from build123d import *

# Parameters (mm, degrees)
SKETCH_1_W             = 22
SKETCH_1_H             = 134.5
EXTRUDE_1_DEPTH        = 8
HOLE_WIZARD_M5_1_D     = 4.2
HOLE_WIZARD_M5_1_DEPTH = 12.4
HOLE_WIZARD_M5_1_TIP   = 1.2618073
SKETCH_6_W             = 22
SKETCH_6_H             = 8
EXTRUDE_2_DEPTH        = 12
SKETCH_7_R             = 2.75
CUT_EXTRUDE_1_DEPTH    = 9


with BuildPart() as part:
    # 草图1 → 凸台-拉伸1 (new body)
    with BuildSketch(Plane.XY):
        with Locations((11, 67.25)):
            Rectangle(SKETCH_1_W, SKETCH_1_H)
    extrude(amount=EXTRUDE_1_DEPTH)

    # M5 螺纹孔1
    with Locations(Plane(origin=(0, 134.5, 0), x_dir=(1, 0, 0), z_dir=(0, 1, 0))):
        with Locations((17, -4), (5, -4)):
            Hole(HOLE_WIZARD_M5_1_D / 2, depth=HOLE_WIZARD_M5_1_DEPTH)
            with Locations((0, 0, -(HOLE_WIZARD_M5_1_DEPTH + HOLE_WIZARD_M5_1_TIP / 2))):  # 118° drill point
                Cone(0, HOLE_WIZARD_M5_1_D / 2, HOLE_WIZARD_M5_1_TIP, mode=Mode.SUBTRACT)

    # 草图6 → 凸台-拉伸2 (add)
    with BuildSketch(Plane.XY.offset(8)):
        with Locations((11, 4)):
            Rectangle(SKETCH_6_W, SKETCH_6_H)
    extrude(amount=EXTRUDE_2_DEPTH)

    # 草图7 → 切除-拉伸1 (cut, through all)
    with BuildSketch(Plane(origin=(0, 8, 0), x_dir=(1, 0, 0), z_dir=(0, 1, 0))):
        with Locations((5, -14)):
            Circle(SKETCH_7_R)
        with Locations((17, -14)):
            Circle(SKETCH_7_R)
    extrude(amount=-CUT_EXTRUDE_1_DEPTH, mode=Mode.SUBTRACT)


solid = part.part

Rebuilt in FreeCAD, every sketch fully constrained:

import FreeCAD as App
import Part
import Sketcher
from FreeCAD import Vector


def add_polygon(sketch, points):
    """Adds a closed chain of lines whose ends are joined by coincident constraints."""
    first, n = sketch.GeometryCount, len(points)
    for a, b in zip(points, points[1:] + points[:1]):
        sketch.addGeometry(Part.LineSegment(App.Vector(*a, 0), App.Vector(*b, 0)), False)
    for i in range(n):
        sketch.addConstraint(Sketcher.Constraint("Coincident", first + i, 2, first + (i + 1) % n, 1))

doc = App.newDocument("Part")
body = doc.addObject("PartDesign::Body", "Body")

sketch1 = body.newObject("Sketcher::SketchObject", "Sketch")
sketch1.AttachmentSupport = (doc.getObject("XY_Plane"), [""])
sketch1.MapMode = "FlatFace"
add_polygon(sketch1, [(0, 134), (0, 0), (22, 0), (22, 134)])
sketch1.addConstraint([
    Sketcher.Constraint("Vertical", 0),
    Sketcher.Constraint("Horizontal", 1),
    Sketcher.Constraint("Vertical", 2),
    Sketcher.Constraint("Horizontal", 3),
    Sketcher.Constraint("Coincident", 0, 2, -1, 1),
    Sketcher.Constraint("DistanceX", 1, 1, 1, 2, 22.0),
    Sketcher.Constraint("DistanceY", 0, 2, 0, 1, 134.5),
])
pad1 = body.newObject("PartDesign::Pad", "Pad")
pad1.Profile = sketch1
pad1.Length = 8

sketch2 = body.newObject("Sketcher::SketchObject", "Sketch001")
sketch2.AttachmentSupport = (doc.getObject("XZ_Plane"), [""])
sketch2.MapMode = "FlatFace"
sketch2.AttachmentOffset = App.Placement(Vector(0, 0, -134.5), App.Rotation())
sketch2.addGeometry([
    Part.Circle(Vector(17, 4, 0), Vector(0, 0, 1), 2.1),
    Part.Circle(Vector(5, 4, 0), Vector(0, 0, 1), 2.1),
], False)
sketch2.addConstraint([
    Sketcher.Constraint("Equal", 0, 1),
    Sketcher.Constraint("Horizontal", 0, 3, 1, 3),
    Sketcher.Constraint("Diameter", 0, 4.2),
    Sketcher.Constraint("DistanceX", -1, 1, 0, 3, 17.0),
    Sketcher.Constraint("DistanceY", -1, 1, 0, 3, 4.0),
    Sketcher.Constraint("DistanceX", -1, 1, 1, 3, 5.0),
])
doc.recompute()
hole = body.newObject("PartDesign::Hole", "Hole")
hole.Profile = sketch2
hole.ThreadType = "None"
hole.Diameter = 4.2
hole.DepthType = "Dimension"
hole.Depth = 12.4
hole.DrillPoint = "Angled"
hole.DrillPointAngle = 118
hole.Reversed = True

sketch3 = body.newObject("Sketcher::SketchObject", "Sketch002")
sketch3.AttachmentSupport = (doc.getObject("XY_Plane"), [""])
sketch3.MapMode = "FlatFace"
sketch3.AttachmentOffset = App.Placement(Vector(0, 0, 8), App.Rotation())
add_polygon(sketch3, [(0, 8), (0, 0), (22, 0), (22, 8)])
sketch3.addConstraint([
    Sketcher.Constraint("Vertical", 0),
    Sketcher.Constraint("Horizontal", 1),
    Sketcher.Constraint("Vertical", 2),
    Sketcher.Constraint("Horizontal", 3),
    Sketcher.Constraint("Coincident", 0, 2, -1, 1),
    Sketcher.Constraint("DistanceX", 1, 1, 1, 2, 22.0),
    Sketcher.Constraint("DistanceY", 0, 2, 0, 1, 8.0),
])
pad2 = body.newObject("PartDesign::Pad", "Pad001")
pad2.Profile = sketch3
pad2.Length = 12

sketch4 = body.newObject("Sketcher::SketchObject", "Sketch003")
sketch4.AttachmentSupport = (doc.getObject("XZ_Plane"), [""])
sketch4.MapMode = "FlatFace"
sketch4.AttachmentOffset = App.Placement(Vector(0, 0, -8), App.Rotation())
sketch4.addGeometry([
    Part.Circle(Vector(5, 14, 0), Vector(0, 0, 1), 2.8),
    Part.Circle(Vector(17, 14, 0), Vector(0, 0, 1), 2.8),
], False)
sketch4.addConstraint([
    Sketcher.Constraint("Equal", 0, 1),
    Sketcher.Constraint("Horizontal", 0, 3, 1, 3),
    Sketcher.Constraint("Diameter", 0, 5.5),
    Sketcher.Constraint("DistanceX", -1, 1, 0, 3, 5.0),
    Sketcher.Constraint("DistanceY", -1, 1, 0, 3, 14.0),
    Sketcher.Constraint("DistanceX", -1, 1, 1, 3, 17.0),
])
pocket1 = body.newObject("PartDesign::Pocket", "Pocket")
pocket1.Profile = sketch4
pocket1.Type = "ThroughAll"
pocket1.Reversed = True

doc.recompute()
